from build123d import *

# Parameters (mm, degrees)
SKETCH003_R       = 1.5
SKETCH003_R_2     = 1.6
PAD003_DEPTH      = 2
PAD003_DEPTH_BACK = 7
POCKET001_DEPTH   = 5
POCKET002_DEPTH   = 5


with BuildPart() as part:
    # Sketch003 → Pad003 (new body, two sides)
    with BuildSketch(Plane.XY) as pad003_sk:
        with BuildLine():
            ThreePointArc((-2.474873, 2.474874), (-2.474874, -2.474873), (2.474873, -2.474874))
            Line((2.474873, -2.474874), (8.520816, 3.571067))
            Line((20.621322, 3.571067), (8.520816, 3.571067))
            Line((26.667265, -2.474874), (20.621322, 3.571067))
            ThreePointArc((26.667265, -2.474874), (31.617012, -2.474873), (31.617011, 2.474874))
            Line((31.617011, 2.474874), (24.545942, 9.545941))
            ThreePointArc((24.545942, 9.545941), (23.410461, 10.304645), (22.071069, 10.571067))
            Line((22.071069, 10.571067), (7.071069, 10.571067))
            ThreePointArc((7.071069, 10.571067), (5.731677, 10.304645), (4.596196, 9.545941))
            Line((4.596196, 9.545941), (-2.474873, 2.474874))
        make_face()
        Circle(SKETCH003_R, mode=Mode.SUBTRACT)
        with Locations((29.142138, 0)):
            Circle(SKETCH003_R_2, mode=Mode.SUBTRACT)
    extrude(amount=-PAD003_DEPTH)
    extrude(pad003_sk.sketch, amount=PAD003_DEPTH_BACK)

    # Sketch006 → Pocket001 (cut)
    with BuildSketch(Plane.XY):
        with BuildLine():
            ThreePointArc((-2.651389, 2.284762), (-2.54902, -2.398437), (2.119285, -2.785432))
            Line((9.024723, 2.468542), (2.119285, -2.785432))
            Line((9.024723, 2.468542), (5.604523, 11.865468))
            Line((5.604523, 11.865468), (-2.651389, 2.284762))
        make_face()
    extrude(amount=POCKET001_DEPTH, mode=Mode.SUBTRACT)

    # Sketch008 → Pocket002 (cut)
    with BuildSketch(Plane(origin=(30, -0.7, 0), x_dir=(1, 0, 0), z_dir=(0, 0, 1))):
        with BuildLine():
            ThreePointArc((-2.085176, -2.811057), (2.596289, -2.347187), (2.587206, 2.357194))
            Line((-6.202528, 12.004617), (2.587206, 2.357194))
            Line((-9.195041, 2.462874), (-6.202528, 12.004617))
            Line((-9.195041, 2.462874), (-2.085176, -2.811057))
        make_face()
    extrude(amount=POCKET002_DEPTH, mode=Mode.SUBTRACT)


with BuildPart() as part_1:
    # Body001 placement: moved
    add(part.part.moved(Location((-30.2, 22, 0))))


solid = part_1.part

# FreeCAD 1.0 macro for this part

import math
import FreeCAD as App
import Part
import Sketcher
from FreeCAD import Vector
Q = App.Units.Quantity

doc = App.newDocument("Part")
params = doc.addObject("Spreadsheet::Sheet", "Params")
for row, (alias, value) in enumerate([
    ("sketch1_diameter", "3 mm"),
    ("sketch1_diameter2", "3.2 mm"),
    ("sketch1_radius", "3.5 mm"),
    ("sketch1_radius2", "3.500002 mm"),
    ("sketch1_width", "15 mm"),
    ("pad1_length", "2 mm"),
    ("pad1_length2", "7 mm"),
    ("sketch2_radius", "3.5 mm"),
    ("sketch2_length", "9.999999 mm"),
    ("pocket1_length", "5 mm"),
    ("sketch3_radius", "3.5 mm"),
    ("sketch3_length", "10 mm"),
    ("pocket2_length", "5 mm"),
], start=1):
    params.set(f"A{row}", alias)
    params.set(f"B{row}", "=" + value)
    params.setAlias(f"B{row}", alias)

body = doc.addObject("PartDesign::Body", "Body")

sketch1 = body.newObject("Sketcher::SketchObject", "Sketch")
sketch1.AttachmentSupport = (doc.getObject("XY_Plane"), [""])
sketch1.MapMode = "FlatFace"
sketch1.addGeometry(Part.ArcOfCircle(Part.Circle(Vector(0, 0, 0), Vector(0, 0, 1), 3.5), math.radians(135), math.radians(315)), False)
sketch1.addGeometry(Part.LineSegment(Vector(2.5, -2.5, 0), Vector(8.5, 3.6, 0)), False)
sketch1.addGeometry(Part.LineSegment(Vector(8.5, 3.6, 0), Vector(20.6, 3.6, 0)), False)
sketch1.addGeometry(Part.LineSegment(Vector(20.6, 3.6, 0), Vector(26.7, -2.5, 0)), False)
sketch1.addGeometry(Part.ArcOfCircle(Part.Circle(Vector(29.1, 0, 0), Vector(0, 0, 1), 3.5), math.radians(-135), math.radians(45)), False)
sketch1.addGeometry(Part.LineSegment(Vector(31.6, 2.5, 0), Vector(24.5, 9.5, 0)), False)
sketch1.addGeometry(Part.ArcOfCircle(Part.Circle(Vector(22.1, 7.1, 0), Vector(0, 0, 1), 3.5), math.radians(45), math.radians(90)), False)
sketch1.addGeometry(Part.LineSegment(Vector(22.1, 10.6, 0), Vector(7.1, 10.6, 0)), False)
sketch1.addGeometry(Part.ArcOfCircle(Part.Circle(Vector(7.1, 7.1, 0), Vector(0, 0, 1), 3.5), math.radians(90), math.radians(135)), False)
sketch1.addGeometry(Part.LineSegment(Vector(4.6, 9.5, 0), Vector(-2.5, 2.5, 0)), False)
sketch1.addGeometry(Part.Circle(Vector(0, 0, 0), Vector(0, 0, 1), 1.5), False)
sketch1.addGeometry(Part.Circle(Vector(29.1, 0, 0), Vector(0, 0, 1), 1.6), False)
sketch1.addConstraint(Sketcher.Constraint("Tangent", 0, 2, 1, 1))
sketch1.addConstraint(Sketcher.Constraint("Coincident", 1, 2, 2, 1))
sketch1.addConstraint(Sketcher.Constraint("Coincident", 2, 2, 3, 1))
sketch1.addConstraint(Sketcher.Constraint("Tangent", 3, 2, 4, 1))
sketch1.addConstraint(Sketcher.Constraint("Tangent", 4, 2, 5, 1))
sketch1.addConstraint(Sketcher.Constraint("Tangent", 5, 2, 6, 1))
sketch1.addConstraint(Sketcher.Constraint("Tangent", 6, 2, 7, 1))
sketch1.addConstraint(Sketcher.Constraint("Tangent", 7, 2, 8, 1))
sketch1.addConstraint(Sketcher.Constraint("Tangent", 8, 2, 9, 1))
sketch1.addConstraint(Sketcher.Constraint("Tangent", 9, 2, 0, 1))
sketch1.addConstraint(Sketcher.Constraint("Horizontal", 2))
sketch1.addConstraint(Sketcher.Constraint("Horizontal", 7))
sketch1.addConstraint(Sketcher.Constraint("Coincident", 0, 3, -1, 1))
sketch1.addConstraint(Sketcher.Constraint("Coincident", 10, 3, -1, 1))
sketch1.addConstraint(Sketcher.Constraint("Coincident", 11, 3, 4, 3))
sketch1.addConstraint(Sketcher.Constraint("Equal", 0, 4))
sketch1.addConstraint(Sketcher.Constraint("Equal", 6, 8))
sketch1.addConstraint(Sketcher.Constraint("PointOnObject", 4, 3, -1))
sketch1.addConstraint(Sketcher.Constraint("Perpendicular", 1, 3))
sketch1.addConstraint(Sketcher.Constraint("Parallel", 3, 5))
sketch1.addConstraint(Sketcher.Constraint("Perpendicular", 5, 9))
sketch1.addConstraint(Sketcher.Constraint("Horizontal", 0, 2, 3, 2))
sketch1.addConstraint(Sketcher.Constraint("Diameter", 10, 3.0))
sketch1.addConstraint(Sketcher.Constraint("Diameter", 11, 3.2))
sketch1.addConstraint(Sketcher.Constraint("Radius", 0, 3.5))
sketch1.addConstraint(Sketcher.Constraint("Radius", 6, 3.500002))
sketch1.addConstraint(Sketcher.Constraint("DistanceX", 7, 2, 7, 1, 15.0))
sketch1.addConstraint(Sketcher.Constraint("Distance", 5, 10.0))
sketch1.addConstraint(Sketcher.Constraint("DistanceY", 2, 2, 6, 2, 7.0))
sketch1.setExpression("Constraints[22]", "Params.sketch1_diameter")
sketch1.setExpression("Constraints[23]", "Params.sketch1_diameter2")
sketch1.setExpression("Constraints[24]", "Params.sketch1_radius")
sketch1.setExpression("Constraints[25]", "Params.sketch1_radius2")
sketch1.setExpression("Constraints[26]", "Params.sketch1_width")
pad1 = body.newObject("PartDesign::Pad", "Pad")
pad1.Profile = sketch1
pad1.Type = "TwoLengths"
pad1.setExpression("Length", "Params.pad1_length")
pad1.setExpression("Length2", "Params.pad1_length2")
pad1.Reversed = True

sketch2 = body.newObject("Sketcher::SketchObject", "Sketch001")
sketch2.AttachmentSupport = (doc.getObject("XY_Plane"), [""])
sketch2.MapMode = "FlatFace"
sketch2.addGeometry(Part.ArcOfCircle(Part.Circle(Vector(0, 0, 0), Vector(0, 0, 1), 3.5), math.radians(139), math.radians(307)), False)
sketch2.addGeometry(Part.LineSegment(Vector(2.1, -2.8, 0), Vector(9, 2.5, 0)), False)
sketch2.addGeometry(Part.LineSegment(Vector(9, 2.5, 0), Vector(5.6, 11.9, 0)), False)
sketch2.addGeometry(Part.LineSegment(Vector(5.6, 11.9, 0), Vector(-2.7, 2.3, 0)), False)
sketch2.addConstraint(Sketcher.Constraint("Tangent", 0, 2, 1, 1))
sketch2.addConstraint(Sketcher.Constraint("Coincident", 1, 2, 2, 1))
sketch2.addConstraint(Sketcher.Constraint("Coincident", 2, 2, 3, 1))
sketch2.addConstraint(Sketcher.Constraint("Tangent", 3, 2, 0, 1))
sketch2.addConstraint(Sketcher.Constraint("Coincident", 0, 3, -1, 1))
sketch2.addConstraint(Sketcher.Constraint("Radius", 0, 3.5))
sketch2.addConstraint(Sketcher.Constraint("Angle", 2, Q("109.999993 deg")))
sketch2.addConstraint(Sketcher.Constraint("Distance", 2, 9.999999))
sketch2.addConstraint(Sketcher.Constraint("DistanceY", 0, 2, 2, 2, 14.6509))
sketch2.addConstraint(Sketcher.Constraint("Distance", 1, 8.676942))
sketch2.setExpression("Constraints[5]", "Params.sketch2_radius")
sketch2.setExpression("Constraints[7]", "Params.sketch2_length")
pocket1 = body.newObject("PartDesign::Pocket", "Pocket")
pocket1.Profile = sketch2
pocket1.setExpression("Length", "Params.pocket1_length")
pocket1.Reversed = True

sketch3 = body.newObject("Sketcher::SketchObject", "Sketch002")
sketch3.AttachmentSupport = (doc.getObject("XY_Plane"), [""])
sketch3.MapMode = "FlatFace"
sketch3.addGeometry(Part.ArcOfCircle(Part.Circle(Vector(30, -0.7, 0), Vector(0, 0, 1), 3.5), math.radians(-127), math.radians(42)), False)
sketch3.addGeometry(Part.LineSegment(Vector(32.6, 1.7, 0), Vector(23.8, 11.3, 0)), False)
sketch3.addGeometry(Part.LineSegment(Vector(23.8, 11.3, 0), Vector(20.8, 1.8, 0)), False)
sketch3.addGeometry(Part.LineSegment(Vector(20.8, 1.8, 0), Vector(27.9, -3.5, 0)), False)
sketch3.addConstraint(Sketcher.Constraint("Tangent", 0, 2, 1, 1))
sketch3.addConstraint(Sketcher.Constraint("Coincident", 1, 2, 2, 1))
sketch3.addConstraint(Sketcher.Constraint("Coincident", 2, 2, 3, 1))
sketch3.addConstraint(Sketcher.Constraint("Tangent", 3, 2, 0, 1))
sketch3.addConstraint(Sketcher.Constraint("Radius", 0, 3.5))
sketch3.addConstraint(Sketcher.Constraint("Distance", 2, 10.0))
sketch3.addConstraint(Sketcher.Constraint("DistanceX", -1, 1, 0, 3, 30.0))
sketch3.addConstraint(Sketcher.Constraint("DistanceY", 0, 3, -1, 1, 0.700001))
sketch3.addConstraint(Sketcher.Constraint("DistanceX", -1, 1, 1, 2, 23.797472))
sketch3.addConstraint(Sketcher.Constraint("DistanceX", -1, 1, 2, 2, 20.804959))
sketch3.addConstraint(Sketcher.Constraint("DistanceY", 0, 2, 2, 2, 0.10568))
sketch3.setExpression("Constraints[4]", "Params.sketch3_radius")
sketch3.setExpression("Constraints[5]", "Params.sketch3_length")
pocket2 = body.newObject("PartDesign::Pocket", "Pocket001")
pocket2.Profile = sketch3
pocket2.setExpression("Length", "Params.pocket2_length")
pocket2.Reversed = True
body2 = doc.addObject("PartDesign::Body", "Body001")
doc.recompute()

body.Placement = App.Placement(Vector(-30.2, 22, 0), App.Rotation(Vector(0, 0, 1), 0))
boolean = body2.newObject("PartDesign::Boolean", "Boolean")
boolean.Type = "Fuse"
boolean.addObjects([body])

doc.recompute()
